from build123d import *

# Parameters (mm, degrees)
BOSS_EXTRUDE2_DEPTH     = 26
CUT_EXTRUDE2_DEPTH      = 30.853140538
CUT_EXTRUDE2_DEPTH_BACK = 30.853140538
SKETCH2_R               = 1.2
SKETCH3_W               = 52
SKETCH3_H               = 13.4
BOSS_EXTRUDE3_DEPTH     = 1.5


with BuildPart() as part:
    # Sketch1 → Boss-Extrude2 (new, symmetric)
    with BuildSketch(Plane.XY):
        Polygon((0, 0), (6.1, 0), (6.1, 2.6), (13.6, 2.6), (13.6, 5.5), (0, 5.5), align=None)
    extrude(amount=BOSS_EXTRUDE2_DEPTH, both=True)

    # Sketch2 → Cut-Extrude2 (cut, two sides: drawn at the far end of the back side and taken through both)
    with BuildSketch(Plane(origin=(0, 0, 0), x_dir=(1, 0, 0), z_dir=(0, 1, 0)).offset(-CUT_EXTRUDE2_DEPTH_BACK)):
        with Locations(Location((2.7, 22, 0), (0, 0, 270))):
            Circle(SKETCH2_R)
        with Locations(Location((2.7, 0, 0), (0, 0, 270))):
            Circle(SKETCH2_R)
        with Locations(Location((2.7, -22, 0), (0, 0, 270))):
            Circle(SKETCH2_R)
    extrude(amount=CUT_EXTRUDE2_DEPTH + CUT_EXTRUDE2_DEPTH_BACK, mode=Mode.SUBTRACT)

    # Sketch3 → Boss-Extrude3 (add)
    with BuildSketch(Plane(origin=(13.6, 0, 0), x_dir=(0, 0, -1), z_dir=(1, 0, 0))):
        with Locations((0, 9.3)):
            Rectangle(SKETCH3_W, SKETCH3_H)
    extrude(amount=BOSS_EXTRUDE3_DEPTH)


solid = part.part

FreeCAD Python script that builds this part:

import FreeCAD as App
import Part
import Sketcher

doc = App.newDocument("Part")
body = doc.addObject("PartDesign::Body", "Body")

# Sketch on XY plane
sketch1 = doc.addObject("Sketcher::SketchObject", "Sketch")
body.addObject(sketch1)
sketch1.AttachmentSupport = (doc.XY_Plane, [""])
sketch1.MapMode = "FlatFace"
sketch1.addGeometry([
    Part.LineSegment(App.Vector(0, 0, 0), App.Vector(6.1, 0, 0)),  # 0
    Part.LineSegment(App.Vector(6.1, 0, 0), App.Vector(6.1, 2.6, 0)),  # 1
    Part.LineSegment(App.Vector(6.1, 2.6, 0), App.Vector(13.6, 2.6, 0)),  # 2
    Part.LineSegment(App.Vector(13.6, 2.6, 0), App.Vector(13.6, 5.5, 0)),  # 3
    Part.LineSegment(App.Vector(13.6, 5.5, 0), App.Vector(0, 5.5, 0)),  # 4
    Part.LineSegment(App.Vector(0, 5.5, 0), App.Vector(0, 0, 0)),  # 5
], False)
sketch1.addConstraint([
    Sketcher.Constraint("Coincident", 0, 2, 1, 1),
    Sketcher.Constraint("Coincident", 1, 2, 2, 1),
    Sketcher.Constraint("Coincident", 2, 2, 3, 1),
    Sketcher.Constraint("Coincident", 3, 2, 4, 1),
    Sketcher.Constraint("Coincident", 4, 2, 5, 1),
    Sketcher.Constraint("Coincident", 5, 2, 0, 1),
    Sketcher.Constraint("Horizontal", 0),
    Sketcher.Constraint("Vertical", 1),
    Sketcher.Constraint("Horizontal", 2),
    Sketcher.Constraint("Vertical", 3),
    Sketcher.Constraint("Horizontal", 4),
    Sketcher.Constraint("Vertical", 5),
    Sketcher.Constraint("Coincident", 5, 2, -1, 1),
    Sketcher.Constraint("DistanceX", 0, 1, 0, 2, 6.1),
    Sketcher.Constraint("DistanceX", 2, 1, 2, 2, 7.5),
    Sketcher.Constraint("DistanceY", 1, 1, 1, 2, 2.6),
    Sketcher.Constraint("DistanceY", 3, 1, 3, 2, 2.9),
])
pad1 = doc.addObject("PartDesign::Pad", "Pad")
body.addObject(pad1)
pad1.Profile = sketch1
pad1.Length = 52
pad1.Midplane = True

# Sketch on XZ plane
sketch2 = doc.addObject("Sketcher::SketchObject", "Sketch001")
body.addObject(sketch2)
sketch2.AttachmentSupport = (doc.XZ_Plane, [""])
sketch2.MapMode = "FlatFace"
sketch2.addGeometry([
    Part.Circle(App.Vector(2.7, -22, 0), App.Vector(0, 0, 1), 1.2),
    Part.Circle(App.Vector(2.7, 0, 0), App.Vector(0, 0, 1), 1.2),
    Part.Circle(App.Vector(2.7, 22, 0), App.Vector(0, 0, 1), 1.2),
], False)
sketch2.addConstraint([
    Sketcher.Constraint("Equal", 0, 1),
    Sketcher.Constraint("Equal", 1, 2),
    Sketcher.Constraint("Symmetric", 0, 3, 2, 3, -1),
    Sketcher.Constraint("PointOnObject", 1, 3, -1),
    Sketcher.Constraint("Vertical", 0, 3, 1, 3),
    Sketcher.Constraint("Diameter", 0, 2.4),
    Sketcher.Constraint("DistanceY", 0, 3, -1, 1, 22.0),
    Sketcher.Constraint("DistanceX", -1, 1, 0, 3, 2.7),
])
pocket1 = doc.addObject("PartDesign::Pocket", "Pocket")
body.addObject(pocket1)
pocket1.Profile = sketch2
pocket1.Type = "ThroughAll"
pocket1.Midplane = True

# Sketch on YZ plane
sketch3 = doc.addObject("Sketcher::SketchObject", "Sketch002")
body.addObject(sketch3)
sketch3.AttachmentSupport = (doc.YZ_Plane, [""])
sketch3.MapMode = "FlatFace"
sketch3.AttachmentOffset = App.Placement(App.Vector(0, 0, 13.6), App.Rotation())
sketch3.addGeometry([
    Part.LineSegment(App.Vector(16, 26, 0), App.Vector(3, 26, 0)),
    Part.LineSegment(App.Vector(3, 26, 0), App.Vector(3, -26, 0)),
    Part.LineSegment(App.Vector(3, -26, 0), App.Vector(16, -26, 0)),
    Part.LineSegment(App.Vector(16, -26, 0), App.Vector(16, 26, 0)),
], False)
sketch3.addConstraint([
    Sketcher.Constraint("Coincident", 0, 2, 1, 1),
    Sketcher.Constraint("Coincident", 1, 2, 2, 1),
    Sketcher.Constraint("Coincident", 2, 2, 3, 1),
    Sketcher.Constraint("Coincident", 3, 2, 0, 1),
    Sketcher.Constraint("Horizontal", 0),
    Sketcher.Constraint("Vertical", 1),
    Sketcher.Constraint("Horizontal", 2),
    Sketcher.Constraint("Vertical", 3),
    Sketcher.Constraint("DistanceY", 1, 2, 1, 1, 52.0),
    Sketcher.Constraint("DistanceX", 0, 2, 0, 1, 13.4),
    Sketcher.Constraint("DistanceY", -1, 1, 0, 2, 26.0),
    Sketcher.Constraint("DistanceX", -1, 1, 2, 2, 16.0),
])
pad2 = doc.addObject("PartDesign::Pad", "Pad001")
body.addObject(pad2)
pad2.Profile = sketch3
pad2.Length = 1.5

doc.recompute()
